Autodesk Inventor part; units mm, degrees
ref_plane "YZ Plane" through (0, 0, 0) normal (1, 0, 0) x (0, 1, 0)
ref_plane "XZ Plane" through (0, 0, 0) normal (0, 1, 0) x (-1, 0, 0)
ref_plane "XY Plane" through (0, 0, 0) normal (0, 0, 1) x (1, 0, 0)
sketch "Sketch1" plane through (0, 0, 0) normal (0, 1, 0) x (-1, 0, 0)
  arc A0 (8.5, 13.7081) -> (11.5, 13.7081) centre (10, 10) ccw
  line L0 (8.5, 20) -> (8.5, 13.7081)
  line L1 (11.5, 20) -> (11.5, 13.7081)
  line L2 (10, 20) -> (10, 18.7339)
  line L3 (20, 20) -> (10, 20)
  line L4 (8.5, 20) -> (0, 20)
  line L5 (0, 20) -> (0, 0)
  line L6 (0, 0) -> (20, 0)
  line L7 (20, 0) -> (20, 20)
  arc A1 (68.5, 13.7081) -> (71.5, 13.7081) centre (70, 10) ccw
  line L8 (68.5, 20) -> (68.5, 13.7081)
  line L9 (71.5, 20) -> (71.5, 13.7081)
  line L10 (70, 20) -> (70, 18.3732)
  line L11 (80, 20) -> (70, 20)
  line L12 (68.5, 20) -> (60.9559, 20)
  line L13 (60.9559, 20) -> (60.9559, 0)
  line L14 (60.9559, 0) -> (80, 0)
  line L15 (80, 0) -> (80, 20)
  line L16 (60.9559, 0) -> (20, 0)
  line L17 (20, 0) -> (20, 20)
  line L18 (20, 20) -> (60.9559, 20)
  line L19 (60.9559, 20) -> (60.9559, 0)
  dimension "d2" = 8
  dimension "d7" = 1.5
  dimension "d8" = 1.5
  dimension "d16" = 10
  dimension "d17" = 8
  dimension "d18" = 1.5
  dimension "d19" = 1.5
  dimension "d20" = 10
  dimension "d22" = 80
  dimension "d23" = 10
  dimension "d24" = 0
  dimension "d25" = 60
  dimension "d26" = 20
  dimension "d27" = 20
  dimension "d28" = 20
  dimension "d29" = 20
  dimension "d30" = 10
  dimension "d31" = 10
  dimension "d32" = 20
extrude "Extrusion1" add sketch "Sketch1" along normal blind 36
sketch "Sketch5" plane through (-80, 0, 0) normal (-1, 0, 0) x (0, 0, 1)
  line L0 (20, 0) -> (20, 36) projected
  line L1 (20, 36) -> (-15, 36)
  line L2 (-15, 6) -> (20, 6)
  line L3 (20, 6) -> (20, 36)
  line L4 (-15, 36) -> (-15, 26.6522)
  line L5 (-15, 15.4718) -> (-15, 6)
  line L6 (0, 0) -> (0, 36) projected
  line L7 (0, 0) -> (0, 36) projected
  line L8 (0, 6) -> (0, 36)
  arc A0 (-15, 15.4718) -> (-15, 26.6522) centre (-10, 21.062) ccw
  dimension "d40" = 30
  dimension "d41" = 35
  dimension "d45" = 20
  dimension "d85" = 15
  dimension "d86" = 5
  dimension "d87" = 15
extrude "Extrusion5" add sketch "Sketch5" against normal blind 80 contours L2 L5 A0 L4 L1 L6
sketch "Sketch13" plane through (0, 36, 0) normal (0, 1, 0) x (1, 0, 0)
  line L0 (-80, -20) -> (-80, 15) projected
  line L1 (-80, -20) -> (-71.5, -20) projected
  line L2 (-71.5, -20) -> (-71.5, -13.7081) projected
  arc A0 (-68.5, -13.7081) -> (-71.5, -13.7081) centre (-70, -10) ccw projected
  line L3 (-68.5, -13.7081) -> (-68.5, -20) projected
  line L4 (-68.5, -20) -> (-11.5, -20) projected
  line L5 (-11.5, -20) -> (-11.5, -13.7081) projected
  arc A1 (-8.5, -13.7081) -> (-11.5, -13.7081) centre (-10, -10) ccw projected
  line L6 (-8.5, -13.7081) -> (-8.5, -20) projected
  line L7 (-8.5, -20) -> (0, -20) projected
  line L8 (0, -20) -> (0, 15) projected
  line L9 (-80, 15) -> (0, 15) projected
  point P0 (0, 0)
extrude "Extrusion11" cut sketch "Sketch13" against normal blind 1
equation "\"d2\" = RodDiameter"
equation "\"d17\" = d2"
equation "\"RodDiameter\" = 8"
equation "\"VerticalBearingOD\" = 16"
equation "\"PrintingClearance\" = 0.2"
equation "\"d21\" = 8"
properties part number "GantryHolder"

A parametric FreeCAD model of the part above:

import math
import FreeCAD as App
import Part
import Sketcher

V = App.Vector

doc = App.newDocument("Part")
params = doc.addObject("Spreadsheet::Sheet", "Params")
for row, (alias, value) in enumerate([
    ("sketch1_radius", "4 mm"),
    ("sketch1_width", "80 mm"),
    ("sketch1_height", "20 mm"),
    ("sketch1_width2", "1.5 mm"),
    ("pad1_length", "36 mm"),
    ("sketch2_radius", "7.5 mm"),
    ("sketch2_width", "30 mm"),
    ("sketch2_height", "15 mm"),
    ("pad2_length", "80 mm"),
    ("sketch3_radius", "4 mm"),
    ("sketch3_width", "57 mm"),
    ("sketch3_width2", "80 mm"),
    ("sketch3_height", "35 mm"),
    ("sketch3_width3", "8.5 mm"),
    ("pocket1_length", "1 mm"),
], start=1):
    params.set(f"A{row}", alias)
    params.set(f"B{row}", "=" + value)
    params.setAlias(f"B{row}", alias)

body = doc.addObject("PartDesign::Body", "Body")

sketch1 = body.newObject("Sketcher::SketchObject", "Sketch")
sketch1.AttachmentSupport = (doc.getObject("XZ_Plane"), [""])
sketch1.MapMode = "FlatFace"
sketch1.addGeometry(Part.ArcOfCircle(Part.Circle(V(-10, 10, 0), V(0, 0, 1), 4), math.radians(112), math.radians(428)), False)
sketch1.addGeometry(Part.LineSegment(V(-8.5, 13.7, 0), V(-8.5, 20, 0)), False)
sketch1.addGeometry(Part.LineSegment(V(-8.5, 20, 0), V(0, 20, 0)), False)
sketch1.addGeometry(Part.LineSegment(V(0, 20, 0), V(0, 0, 0)), False)
sketch1.addGeometry(Part.LineSegment(V(0, 0, 0), V(-80, 0, 0)), False)
sketch1.addGeometry(Part.LineSegment(V(-80, 0, 0), V(-80, 20, 0)), False)
sketch1.addGeometry(Part.LineSegment(V(-80, 20, 0), V(-71.5, 20, 0)), False)
sketch1.addGeometry(Part.LineSegment(V(-71.5, 20, 0), V(-71.5, 13.7, 0)), False)
sketch1.addGeometry(Part.ArcOfCircle(Part.Circle(V(-70, 10, 0), V(0, 0, 1), 4), math.radians(112), math.radians(428)), False)
sketch1.addGeometry(Part.LineSegment(V(-68.5, 13.7, 0), V(-68.5, 20, 0)), False)
sketch1.addGeometry(Part.LineSegment(V(-68.5, 20, 0), V(-11.5, 20, 0)), False)
sketch1.addGeometry(Part.LineSegment(V(-11.5, 20, 0), V(-11.5, 13.7, 0)), False)
sketch1.addConstraint(Sketcher.Constraint("Coincident", 0, 2, 1, 1))
sketch1.addConstraint(Sketcher.Constraint("Coincident", 1, 2, 2, 1))
sketch1.addConstraint(Sketcher.Constraint("Coincident", 2, 2, 3, 1))
sketch1.addConstraint(Sketcher.Constraint("Coincident", 3, 2, 4, 1))
sketch1.addConstraint(Sketcher.Constraint("Coincident", 4, 2, 5, 1))
sketch1.addConstraint(Sketcher.Constraint("Coincident", 5, 2, 6, 1))
sketch1.addConstraint(Sketcher.Constraint("Coincident", 6, 2, 7, 1))
sketch1.addConstraint(Sketcher.Constraint("Coincident", 7, 2, 8, 1))
sketch1.addConstraint(Sketcher.Constraint("Coincident", 8, 2, 9, 1))
sketch1.addConstraint(Sketcher.Constraint("Coincident", 9, 2, 10, 1))
sketch1.addConstraint(Sketcher.Constraint("Coincident", 10, 2, 11, 1))
sketch1.addConstraint(Sketcher.Constraint("Coincident", 11, 2, 0, 1))
sketch1.addConstraint(Sketcher.Constraint("Vertical", 1))
sketch1.addConstraint(Sketcher.Constraint("Horizontal", 2))
sketch1.addConstraint(Sketcher.Constraint("Vertical", 3))
sketch1.addConstraint(Sketcher.Constraint("Horizontal", 4))
sketch1.addConstraint(Sketcher.Constraint("Vertical", 5))
sketch1.addConstraint(Sketcher.Constraint("Horizontal", 6))
sketch1.addConstraint(Sketcher.Constraint("Vertical", 7))
sketch1.addConstraint(Sketcher.Constraint("Vertical", 9))
sketch1.addConstraint(Sketcher.Constraint("Horizontal", 10))
sketch1.addConstraint(Sketcher.Constraint("Vertical", 11))
sketch1.addConstraint(Sketcher.Constraint("Coincident", 3, 2, -1, 1))
sketch1.addConstraint(Sketcher.Constraint("Equal", 0, 8))
sketch1.addConstraint(Sketcher.Constraint("Horizontal", 0, 3, 8, 3))
sketch1.addConstraint(Sketcher.Constraint("Horizontal", 2, 2, 5, 2))
sketch1.addConstraint(Sketcher.Constraint("Horizontal", 0, 2, 7, 2))
sketch1.addConstraint(Sketcher.Constraint("Horizontal", 7, 2, 8, 2))
sketch1.addConstraint(Sketcher.Constraint("Horizontal", 6, 2, 9, 2))
sketch1.addConstraint(Sketcher.Constraint("Horizontal", 8, 2, 11, 2))
sketch1.addConstraint(Sketcher.Constraint("Equal", 2, 6))
sketch1.addConstraint(Sketcher.Constraint("Radius", 0, 4.0))
sketch1.addConstraint(Sketcher.Constraint("DistanceX", 4, 2, 4, 1, 80.0))
sketch1.addConstraint(Sketcher.Constraint("DistanceY", 3, 2, 3, 1, 20.0))
sketch1.addConstraint(Sketcher.Constraint("DistanceX", 0, 3, -1, 1, 10.0))
sketch1.addConstraint(Sketcher.Constraint("DistanceY", -1, 1, 0, 3, 10.0))
sketch1.addConstraint(Sketcher.Constraint("DistanceX", 0, 3, 0, 2, 1.5))
sketch1.setExpression("Constraints[31]", "Params.sketch1_radius")
sketch1.setExpression("Constraints[32]", "Params.sketch1_width")
sketch1.setExpression("Constraints[33]", "Params.sketch1_height")
sketch1.setExpression("Constraints[36]", "Params.sketch1_width2")
pad1 = body.newObject("PartDesign::Pad", "Pad")
pad1.Profile = sketch1
pad1.setExpression("Length", "Params.pad1_length")
pad1.Reversed = True

sketch2 = body.newObject("Sketcher::SketchObject", "Sketch001")
sketch2.AttachmentSupport = (doc.getObject("YZ_Plane"), [""])
sketch2.MapMode = "FlatFace"
sketch2.AttachmentOffset = App.Placement(V(0, 0, -80), App.Rotation())
sketch2.addGeometry(Part.LineSegment(V(6, -15, 0), V(6, 0, 0)), False)
sketch2.addGeometry(Part.LineSegment(V(6, 0, 0), V(36, 0, 0)), False)
sketch2.addGeometry(Part.LineSegment(V(36, 0, 0), V(36, -15, 0)), False)
sketch2.addGeometry(Part.LineSegment(V(36, -15, 0), V(27, -15, 0)), False)
sketch2.addGeometry(Part.ArcOfCircle(Part.Circle(V(21, -10, 0), V(0, 0, 1), 8), math.radians(-42), math.radians(222)), False)
sketch2.addGeometry(Part.LineSegment(V(15, -15, 0), V(6, -15, 0)), False)
sketch2.addConstraint(Sketcher.Constraint("Coincident", 0, 2, 1, 1))
sketch2.addConstraint(Sketcher.Constraint("Coincident", 1, 2, 2, 1))
sketch2.addConstraint(Sketcher.Constraint("Coincident", 2, 2, 3, 1))
sketch2.addConstraint(Sketcher.Constraint("Coincident", 3, 2, 4, 1))
sketch2.addConstraint(Sketcher.Constraint("Coincident", 4, 2, 5, 1))
sketch2.addConstraint(Sketcher.Constraint("Coincident", 5, 2, 0, 1))
sketch2.addConstraint(Sketcher.Constraint("Vertical", 0))
sketch2.addConstraint(Sketcher.Constraint("Horizontal", 1))
sketch2.addConstraint(Sketcher.Constraint("Vertical", 2))
sketch2.addConstraint(Sketcher.Constraint("Horizontal", 3))
sketch2.addConstraint(Sketcher.Constraint("Horizontal", 5))
sketch2.addConstraint(Sketcher.Constraint("PointOnObject", 0, 2, -1))
sketch2.addConstraint(Sketcher.Constraint("Horizontal", 3, 2, 4, 2))
sketch2.addConstraint(Sketcher.Constraint("Radius", 4, 7.5))
sketch2.addConstraint(Sketcher.Constraint("DistanceX", 1, 1, 1, 2, 30.0))
sketch2.addConstraint(Sketcher.Constraint("DistanceY", 0, 1, 0, 2, 15.0))
sketch2.addConstraint(Sketcher.Constraint("DistanceY", 2, 2, 4, 3, 5.0))
sketch2.addConstraint(Sketcher.Constraint("DistanceX", -1, 1, 0, 2, 6.0))
sketch2.addConstraint(Sketcher.Constraint("DistanceX", 3, 2, 3, 1, 9.3478))
sketch2.setExpression("Constraints[13]", "Params.sketch2_radius")
sketch2.setExpression("Constraints[14]", "Params.sketch2_width")
sketch2.setExpression("Constraints[15]", "Params.sketch2_height")
pad2 = body.newObject("PartDesign::Pad", "Pad001")
pad2.Profile = sketch2
pad2.setExpression("Length", "Params.pad2_length")

sketch3 = body.newObject("Sketcher::SketchObject", "Sketch002")
sketch3.AttachmentSupport = (doc.getObject("XZ_Plane"), [""])
sketch3.MapMode = "FlatFace"
sketch3.AttachmentOffset = App.Placement(V(0, 0, -36), App.Rotation())
sketch3.addGeometry(Part.LineSegment(V(-80, -15, 0), V(-80, 20, 0)), False)
sketch3.addGeometry(Part.LineSegment(V(-80, 20, 0), V(-71.5, 20, 0)), False)
sketch3.addGeometry(Part.LineSegment(V(-71.5, 20, 0), V(-71.5, 13.7, 0)), False)
sketch3.addGeometry(Part.ArcOfCircle(Part.Circle(V(-70, 10, 0), V(0, 0, 1), 4), math.radians(112), math.radians(428)), False)
sketch3.addGeometry(Part.LineSegment(V(-68.5, 13.7, 0), V(-68.5, 20, 0)), False)
sketch3.addGeometry(Part.LineSegment(V(-68.5, 20, 0), V(-11.5, 20, 0)), False)
sketch3.addGeometry(Part.LineSegment(V(-11.5, 20, 0), V(-11.5, 13.7, 0)), False)
sketch3.addGeometry(Part.ArcOfCircle(Part.Circle(V(-10, 10, 0), V(0, 0, 1), 4), math.radians(112), math.radians(428)), False)
sketch3.addGeometry(Part.LineSegment(V(-8.5, 13.7, 0), V(-8.5, 20, 0)), False)
sketch3.addGeometry(Part.LineSegment(V(-8.5, 20, 0), V(0, 20, 0)), False)
sketch3.addGeometry(Part.LineSegment(V(0, 20, 0), V(0, -15, 0)), False)
sketch3.addGeometry(Part.LineSegment(V(0, -15, 0), V(-80, -15, 0)), False)
sketch3.addConstraint(Sketcher.Constraint("Coincident", 0, 2, 1, 1))
sketch3.addConstraint(Sketcher.Constraint("Coincident", 1, 2, 2, 1))
sketch3.addConstraint(Sketcher.Constraint("Coincident", 2, 2, 3, 1))
sketch3.addConstraint(Sketcher.Constraint("Coincident", 3, 2, 4, 1))
sketch3.addConstraint(Sketcher.Constraint("Coincident", 4, 2, 5, 1))
sketch3.addConstraint(Sketcher.Constraint("Coincident", 5, 2, 6, 1))
sketch3.addConstraint(Sketcher.Constraint("Coincident", 6, 2, 7, 1))
sketch3.addConstraint(Sketcher.Constraint("Coincident", 7, 2, 8, 1))
sketch3.addConstraint(Sketcher.Constraint("Coincident", 8, 2, 9, 1))
sketch3.addConstraint(Sketcher.Constraint("Coincident", 9, 2, 10, 1))
sketch3.addConstraint(Sketcher.Constraint("Coincident", 10, 2, 11, 1))
sketch3.addConstraint(Sketcher.Constraint("Coincident", 11, 2, 0, 1))
sketch3.addConstraint(Sketcher.Constraint("Vertical", 0))
sketch3.addConstraint(Sketcher.Constraint("Horizontal", 1))
sketch3.addConstraint(Sketcher.Constraint("Vertical", 2))
sketch3.addConstraint(Sketcher.Constraint("Vertical", 4))
sketch3.addConstraint(Sketcher.Constraint("Horizontal", 5))
sketch3.addConstraint(Sketcher.Constraint("Vertical", 6))
sketch3.addConstraint(Sketcher.Constraint("Vertical", 8))
sketch3.addConstraint(Sketcher.Constraint("Horizontal", 9))
sketch3.addConstraint(Sketcher.Constraint("Vertical", 10))
sketch3.addConstraint(Sketcher.Constraint("Horizontal", 11))
sketch3.addConstraint(Sketcher.Constraint("Equal", 3, 7))
sketch3.addConstraint(Sketcher.Constraint("PointOnObject", 9, 2, -2))
sketch3.addConstraint(Sketcher.Constraint("Horizontal", 3, 3, 7, 3))
sketch3.addConstraint(Sketcher.Constraint("Horizontal", 2, 2, 3, 2))
sketch3.addConstraint(Sketcher.Constraint("Horizontal", 1, 2, 4, 2))
sketch3.addConstraint(Sketcher.Constraint("Horizontal", 3, 2, 6, 2))
sketch3.addConstraint(Sketcher.Constraint("Horizontal", 6, 2, 7, 2))
sketch3.addConstraint(Sketcher.Constraint("Horizontal", 5, 2, 8, 2))
sketch3.addConstraint(Sketcher.Constraint("Equal", 1, 9))
sketch3.addConstraint(Sketcher.Constraint("Radius", 3, 4.0))
sketch3.addConstraint(Sketcher.Constraint("DistanceX", 5, 1, 5, 2, 57.0))
sketch3.addConstraint(Sketcher.Constraint("DistanceX", 11, 2, 11, 1, 80.0))
sketch3.addConstraint(Sketcher.Constraint("DistanceY", 0, 1, 0, 2, 35.0))
sketch3.addConstraint(Sketcher.Constraint("DistanceX", 1, 1, 1, 2, 8.5))
sketch3.addConstraint(Sketcher.Constraint("DistanceY", -1, 1, 3, 3, 10.0))
sketch3.addConstraint(Sketcher.Constraint("DistanceY", -1, 1, 0, 2, 20.0))
sketch3.setExpression("Constraints[31]", "Params.sketch3_radius")
sketch3.setExpression("Constraints[32]", "Params.sketch3_width")
sketch3.setExpression("Constraints[33]", "Params.sketch3_width2")
sketch3.setExpression("Constraints[34]", "Params.sketch3_height")
sketch3.setExpression("Constraints[35]", "Params.sketch3_width3")
pocket1 = body.newObject("PartDesign::Pocket", "Pocket")
pocket1.Profile = sketch3
pocket1.setExpression("Length", "Params.pocket1_length")
pocket1.Reversed = True

doc.recompute()
